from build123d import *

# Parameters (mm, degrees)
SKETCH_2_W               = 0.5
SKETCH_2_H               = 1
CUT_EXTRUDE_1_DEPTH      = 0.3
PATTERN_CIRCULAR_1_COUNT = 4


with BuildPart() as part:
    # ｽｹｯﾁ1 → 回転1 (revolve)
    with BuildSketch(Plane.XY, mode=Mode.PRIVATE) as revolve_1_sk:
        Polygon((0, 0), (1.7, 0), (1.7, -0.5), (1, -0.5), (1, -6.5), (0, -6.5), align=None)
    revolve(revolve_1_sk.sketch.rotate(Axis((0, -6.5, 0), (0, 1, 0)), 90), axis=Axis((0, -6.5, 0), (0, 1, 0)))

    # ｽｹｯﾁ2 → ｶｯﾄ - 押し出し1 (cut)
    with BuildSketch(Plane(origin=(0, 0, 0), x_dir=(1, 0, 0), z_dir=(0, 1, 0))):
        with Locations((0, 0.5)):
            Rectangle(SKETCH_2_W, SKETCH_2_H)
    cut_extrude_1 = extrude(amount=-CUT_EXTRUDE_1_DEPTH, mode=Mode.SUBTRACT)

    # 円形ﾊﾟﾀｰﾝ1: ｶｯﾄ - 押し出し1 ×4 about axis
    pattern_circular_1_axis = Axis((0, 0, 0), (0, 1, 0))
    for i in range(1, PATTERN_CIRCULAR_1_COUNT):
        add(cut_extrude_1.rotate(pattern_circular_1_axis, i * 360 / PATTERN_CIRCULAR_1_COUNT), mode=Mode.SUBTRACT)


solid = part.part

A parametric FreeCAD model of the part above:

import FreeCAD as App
import Part
import Sketcher

V = App.Vector


def add_polygon(sketch, points):
    """Adds a closed chain of lines whose ends are joined by coincident constraints."""
    first, n = sketch.GeometryCount, len(points)
    for a, b in zip(points, points[1:] + points[:1]):
        sketch.addGeometry(Part.LineSegment(App.Vector(*a, 0), App.Vector(*b, 0)), False)
    for i in range(n):
        sketch.addConstraint(Sketcher.Constraint("Coincident", first + i, 2, first + (i + 1) % n, 1))

doc = App.newDocument("Part")
body = doc.addObject("PartDesign::Body", "Body")

# Sketch on XY plane
sketch1 = doc.addObject("Sketcher::SketchObject", "Sketch")
body.addObject(sketch1)
sketch1.AttachmentSupport = (doc.XY_Plane, [""])
sketch1.MapMode = "FlatFace"
add_polygon(sketch1, [(1.7, 0), (0, 0), (0, -6.5), (1, -6.5), (1, -0.5), (1.7, -0.5)])  # lines 0-5
sketch1.addConstraint([
    Sketcher.Constraint("Horizontal", 0),
    Sketcher.Constraint("Vertical", 1),
    Sketcher.Constraint("Horizontal", 2),
    Sketcher.Constraint("Vertical", 3),
    Sketcher.Constraint("Horizontal", 4),
    Sketcher.Constraint("Vertical", 5),
    Sketcher.Constraint("Coincident", 0, 2, -1, 1),
    Sketcher.Constraint("DistanceX", 2, 1, 2, 2, 1.0),
    Sketcher.Constraint("DistanceY", 3, 1, 3, 2, 6.0),
    Sketcher.Constraint("DistanceX", 0, 2, 0, 1, 1.7),
    Sketcher.Constraint("DistanceY", 1, 2, 1, 1, 6.5),
])
revolution = doc.addObject("PartDesign::Revolution", "Revolution")
body.addObject(revolution)
revolution.Profile = sketch1
revolution.ReferenceAxis = (sketch1, ["V_Axis"])
revolution.Angle = 360

# Sketch on XZ plane
sketch2 = doc.addObject("Sketcher::SketchObject", "Sketch001")
body.addObject(sketch2)
sketch2.AttachmentSupport = (doc.XZ_Plane, [""])
sketch2.MapMode = "FlatFace"
add_polygon(sketch2, [(-0.2, -1), (-0.2, 0), (0.2, 0), (0.2, -1)])  # lines 0-3
sketch2.addConstraint([
    Sketcher.Constraint("Vertical", 0),
    Sketcher.Constraint("Horizontal", 1),
    Sketcher.Constraint("Vertical", 2),
    Sketcher.Constraint("Horizontal", 3),
    Sketcher.Constraint("Symmetric", 0, 2, 1, 2, -1, 1),
    Sketcher.Constraint("DistanceY", 0, 1, 0, 2, 1.0),
    Sketcher.Constraint("DistanceX", 1, 1, 1, 2, 0.5),
])
pocket1 = doc.addObject("PartDesign::Pocket", "Pocket")
body.addObject(pocket1)
pocket1.Profile = sketch2
pocket1.Length = 0.3
pocket1.Reversed = True
doc.recompute()

polarpattern = doc.addObject("PartDesign::PolarPattern", "PolarPattern")
body.addObject(polarpattern)
polarpattern.Originals = [pocket1]
polarpattern.Axis = (doc.Y_Axis, [""])
polarpattern.Angle = 360
polarpattern.Occurrences = 4
body.Tip = polarpattern

doc.recompute()
